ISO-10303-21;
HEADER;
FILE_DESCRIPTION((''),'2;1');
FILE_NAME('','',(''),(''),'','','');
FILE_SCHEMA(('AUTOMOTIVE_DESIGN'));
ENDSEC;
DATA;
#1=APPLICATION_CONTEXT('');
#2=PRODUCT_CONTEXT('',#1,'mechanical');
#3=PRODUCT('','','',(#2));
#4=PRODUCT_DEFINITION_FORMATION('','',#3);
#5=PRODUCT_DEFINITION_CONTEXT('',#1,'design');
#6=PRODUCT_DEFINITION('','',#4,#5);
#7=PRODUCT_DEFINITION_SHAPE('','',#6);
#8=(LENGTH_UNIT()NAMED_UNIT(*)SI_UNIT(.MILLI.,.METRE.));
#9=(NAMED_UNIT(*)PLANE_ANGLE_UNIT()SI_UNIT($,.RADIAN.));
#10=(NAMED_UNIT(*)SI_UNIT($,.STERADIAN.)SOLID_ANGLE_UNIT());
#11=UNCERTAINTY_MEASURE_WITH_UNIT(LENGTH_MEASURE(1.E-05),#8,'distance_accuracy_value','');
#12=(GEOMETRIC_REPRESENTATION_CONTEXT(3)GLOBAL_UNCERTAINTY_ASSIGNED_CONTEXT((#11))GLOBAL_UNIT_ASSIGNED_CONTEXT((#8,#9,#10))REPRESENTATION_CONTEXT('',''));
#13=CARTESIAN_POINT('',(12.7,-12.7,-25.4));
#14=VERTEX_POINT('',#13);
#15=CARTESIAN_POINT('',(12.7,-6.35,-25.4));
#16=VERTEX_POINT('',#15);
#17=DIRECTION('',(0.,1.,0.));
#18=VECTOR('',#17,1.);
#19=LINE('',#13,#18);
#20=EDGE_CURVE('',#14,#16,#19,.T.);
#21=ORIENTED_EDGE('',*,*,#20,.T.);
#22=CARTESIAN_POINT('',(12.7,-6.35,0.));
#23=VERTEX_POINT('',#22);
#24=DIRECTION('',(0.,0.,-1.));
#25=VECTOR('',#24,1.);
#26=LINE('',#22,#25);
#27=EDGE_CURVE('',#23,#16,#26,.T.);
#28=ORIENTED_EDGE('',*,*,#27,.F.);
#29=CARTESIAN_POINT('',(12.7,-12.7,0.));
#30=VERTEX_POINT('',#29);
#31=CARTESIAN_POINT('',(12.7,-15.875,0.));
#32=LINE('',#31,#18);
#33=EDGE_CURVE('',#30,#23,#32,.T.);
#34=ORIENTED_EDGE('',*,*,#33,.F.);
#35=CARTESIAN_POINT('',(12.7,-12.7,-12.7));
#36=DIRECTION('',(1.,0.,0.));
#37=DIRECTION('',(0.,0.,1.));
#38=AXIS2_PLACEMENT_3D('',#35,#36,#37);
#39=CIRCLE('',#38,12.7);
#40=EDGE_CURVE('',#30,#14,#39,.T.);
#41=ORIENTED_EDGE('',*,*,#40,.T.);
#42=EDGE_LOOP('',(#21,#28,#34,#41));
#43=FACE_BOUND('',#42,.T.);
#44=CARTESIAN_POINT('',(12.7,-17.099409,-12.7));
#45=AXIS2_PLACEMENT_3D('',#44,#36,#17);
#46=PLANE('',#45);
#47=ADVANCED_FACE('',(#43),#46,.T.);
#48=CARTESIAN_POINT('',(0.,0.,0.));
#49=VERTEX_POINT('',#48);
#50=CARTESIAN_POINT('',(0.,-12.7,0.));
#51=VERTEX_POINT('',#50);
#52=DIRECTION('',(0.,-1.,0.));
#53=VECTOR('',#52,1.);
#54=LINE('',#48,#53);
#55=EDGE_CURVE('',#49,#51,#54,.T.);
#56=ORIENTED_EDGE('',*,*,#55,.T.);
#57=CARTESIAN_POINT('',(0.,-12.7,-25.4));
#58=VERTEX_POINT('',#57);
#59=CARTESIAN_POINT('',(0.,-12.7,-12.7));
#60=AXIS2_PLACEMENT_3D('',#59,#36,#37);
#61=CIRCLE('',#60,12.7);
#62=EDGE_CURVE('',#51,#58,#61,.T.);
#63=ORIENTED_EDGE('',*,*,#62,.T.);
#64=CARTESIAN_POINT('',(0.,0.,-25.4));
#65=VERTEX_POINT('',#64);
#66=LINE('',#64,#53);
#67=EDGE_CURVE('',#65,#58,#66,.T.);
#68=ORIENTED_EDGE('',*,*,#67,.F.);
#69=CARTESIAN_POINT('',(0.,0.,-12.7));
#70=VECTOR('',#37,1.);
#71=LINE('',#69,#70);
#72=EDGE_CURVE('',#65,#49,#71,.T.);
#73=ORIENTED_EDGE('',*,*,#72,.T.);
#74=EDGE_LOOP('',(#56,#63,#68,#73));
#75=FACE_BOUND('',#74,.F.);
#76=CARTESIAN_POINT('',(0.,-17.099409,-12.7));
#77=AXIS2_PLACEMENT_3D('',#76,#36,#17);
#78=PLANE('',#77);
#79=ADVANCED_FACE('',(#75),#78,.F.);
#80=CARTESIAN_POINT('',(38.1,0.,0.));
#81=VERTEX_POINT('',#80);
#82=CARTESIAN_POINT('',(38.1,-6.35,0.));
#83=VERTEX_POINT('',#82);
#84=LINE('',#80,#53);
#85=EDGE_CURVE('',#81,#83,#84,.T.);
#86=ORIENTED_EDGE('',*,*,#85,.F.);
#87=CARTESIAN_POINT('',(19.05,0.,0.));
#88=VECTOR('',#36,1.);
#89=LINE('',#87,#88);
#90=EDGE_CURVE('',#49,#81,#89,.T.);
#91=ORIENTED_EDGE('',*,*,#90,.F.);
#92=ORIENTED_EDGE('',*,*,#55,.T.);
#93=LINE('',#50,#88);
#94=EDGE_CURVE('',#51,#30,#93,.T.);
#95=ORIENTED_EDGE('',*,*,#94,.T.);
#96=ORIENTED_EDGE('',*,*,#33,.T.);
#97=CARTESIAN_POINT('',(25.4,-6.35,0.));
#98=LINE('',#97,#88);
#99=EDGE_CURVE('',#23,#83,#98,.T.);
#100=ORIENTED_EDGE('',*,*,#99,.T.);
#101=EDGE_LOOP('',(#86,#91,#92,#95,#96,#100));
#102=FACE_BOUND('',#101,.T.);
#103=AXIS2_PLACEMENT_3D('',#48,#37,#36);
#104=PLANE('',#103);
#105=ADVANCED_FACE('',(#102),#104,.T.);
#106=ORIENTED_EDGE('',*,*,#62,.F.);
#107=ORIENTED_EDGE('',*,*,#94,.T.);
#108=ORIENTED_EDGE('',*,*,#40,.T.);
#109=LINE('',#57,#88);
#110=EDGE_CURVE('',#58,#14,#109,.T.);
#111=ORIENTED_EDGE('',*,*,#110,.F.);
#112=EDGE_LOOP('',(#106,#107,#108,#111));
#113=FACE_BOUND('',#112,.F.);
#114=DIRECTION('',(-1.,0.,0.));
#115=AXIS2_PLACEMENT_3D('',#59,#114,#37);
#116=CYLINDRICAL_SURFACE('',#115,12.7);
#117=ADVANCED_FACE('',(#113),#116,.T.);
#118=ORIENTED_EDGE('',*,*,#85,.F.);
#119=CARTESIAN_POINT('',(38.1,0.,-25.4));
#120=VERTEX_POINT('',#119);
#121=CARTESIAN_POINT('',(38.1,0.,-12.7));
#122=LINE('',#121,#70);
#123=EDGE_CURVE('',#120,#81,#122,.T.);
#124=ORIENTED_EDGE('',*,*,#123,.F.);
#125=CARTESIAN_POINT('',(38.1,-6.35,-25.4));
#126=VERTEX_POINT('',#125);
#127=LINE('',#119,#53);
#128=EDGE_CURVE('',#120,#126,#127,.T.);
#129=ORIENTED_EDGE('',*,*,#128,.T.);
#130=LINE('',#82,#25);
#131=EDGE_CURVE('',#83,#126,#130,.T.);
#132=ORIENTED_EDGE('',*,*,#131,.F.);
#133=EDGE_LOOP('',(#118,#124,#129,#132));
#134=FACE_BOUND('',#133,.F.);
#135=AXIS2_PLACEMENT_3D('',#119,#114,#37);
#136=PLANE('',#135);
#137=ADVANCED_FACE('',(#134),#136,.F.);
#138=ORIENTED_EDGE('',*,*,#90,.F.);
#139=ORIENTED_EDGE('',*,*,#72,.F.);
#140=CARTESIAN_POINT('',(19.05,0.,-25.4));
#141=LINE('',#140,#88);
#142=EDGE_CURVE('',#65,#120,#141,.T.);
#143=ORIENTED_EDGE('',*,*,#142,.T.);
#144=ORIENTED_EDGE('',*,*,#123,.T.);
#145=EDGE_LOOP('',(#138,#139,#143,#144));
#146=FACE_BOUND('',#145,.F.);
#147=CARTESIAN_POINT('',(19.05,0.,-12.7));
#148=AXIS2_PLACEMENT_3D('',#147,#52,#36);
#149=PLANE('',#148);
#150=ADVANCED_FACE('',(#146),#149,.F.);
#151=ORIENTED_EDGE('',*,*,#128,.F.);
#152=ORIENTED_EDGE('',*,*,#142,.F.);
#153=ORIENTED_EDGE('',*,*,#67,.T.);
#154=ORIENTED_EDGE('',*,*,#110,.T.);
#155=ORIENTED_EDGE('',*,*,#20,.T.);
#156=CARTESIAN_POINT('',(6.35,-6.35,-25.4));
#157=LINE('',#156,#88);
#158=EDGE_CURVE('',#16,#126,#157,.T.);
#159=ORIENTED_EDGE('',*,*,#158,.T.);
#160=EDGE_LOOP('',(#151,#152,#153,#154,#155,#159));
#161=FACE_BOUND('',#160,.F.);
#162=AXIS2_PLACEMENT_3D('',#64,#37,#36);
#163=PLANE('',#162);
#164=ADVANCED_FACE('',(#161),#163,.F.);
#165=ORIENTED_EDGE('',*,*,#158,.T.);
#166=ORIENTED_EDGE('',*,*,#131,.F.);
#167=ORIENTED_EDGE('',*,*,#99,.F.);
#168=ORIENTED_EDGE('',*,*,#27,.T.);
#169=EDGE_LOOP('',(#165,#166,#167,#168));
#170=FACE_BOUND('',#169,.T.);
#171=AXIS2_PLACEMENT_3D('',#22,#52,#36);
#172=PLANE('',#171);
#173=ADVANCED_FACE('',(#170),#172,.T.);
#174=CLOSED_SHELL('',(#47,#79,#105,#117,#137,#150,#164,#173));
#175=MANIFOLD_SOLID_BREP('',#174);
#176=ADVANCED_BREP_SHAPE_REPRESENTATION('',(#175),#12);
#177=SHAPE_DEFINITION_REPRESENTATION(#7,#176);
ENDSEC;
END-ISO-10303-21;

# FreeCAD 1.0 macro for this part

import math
import FreeCAD as App
import Part
import Sketcher
Q = App.Units.Quantity


def add_polygon(sketch, points):
    """Adds a closed chain of lines whose ends are joined by coincident constraints."""
    first, n = sketch.GeometryCount, len(points)
    for a, b in zip(points, points[1:] + points[:1]):
        sketch.addGeometry(Part.LineSegment(App.Vector(*a, 0), App.Vector(*b, 0)), False)
    for i in range(n):
        sketch.addConstraint(Sketcher.Constraint("Coincident", first + i, 2, first + (i + 1) % n, 1))

doc = App.newDocument("Part")
body = doc.addObject("PartDesign::Body", "Body")

sketch1 = body.newObject("Sketcher::SketchObject", "Sketch")
sketch1.AttachmentSupport = (doc.getObject("XZ_Plane"), [""])
sketch1.MapMode = "FlatFace"
add_polygon(sketch1, [(0, 0), (0, -25), (38, -25), (38, 0)])
sketch1.addConstraint([
    Sketcher.Constraint("Vertical", 0),
    Sketcher.Constraint("Horizontal", 1),
    Sketcher.Constraint("Vertical", 2),
    Sketcher.Constraint("Horizontal", 3),
    Sketcher.Constraint("Coincident", 3, 2, -1, 1),
    Sketcher.Constraint("DistanceY", 0, 2, 0, 1, Q("1 in")),
    Sketcher.Constraint("DistanceX", 1, 1, 1, 2, Q("1.5 in")),
])
pad1 = body.newObject("PartDesign::Pad", "Pad")
pad1.Profile = sketch1
pad1.Length = Q("1 in")

sketch2 = body.newObject("Sketcher::SketchObject", "Sketch001")
sketch2.AttachmentSupport = (doc.getObject("XY_Plane"), [""])
sketch2.MapMode = "FlatFace"
add_polygon(sketch2, [(13, -6), (13, -25), (38, -25), (38, -6)])
sketch2.addConstraint([
    Sketcher.Constraint("Vertical", 0),
    Sketcher.Constraint("Horizontal", 1),
    Sketcher.Constraint("Vertical", 2),
    Sketcher.Constraint("Horizontal", 3),
    Sketcher.Constraint("DistanceX", 1, 1, 1, 2, Q("1 in")),
    Sketcher.Constraint("DistanceY", 0, 2, -1, 1, Q("1 in")),
    Sketcher.Constraint("DistanceY", 0, 2, 0, 1, Q("0.75 in")),
    Sketcher.Constraint("DistanceX", -1, 1, 0, 2, Q("0.5 in")),
])
pocket1 = body.newObject("PartDesign::Pocket", "Pocket")
pocket1.Profile = sketch2
pocket1.Type = "ThroughAll"

sketch3 = body.newObject("Sketcher::SketchObject", "Sketch002")
sketch3.AttachmentSupport = (doc.getObject("YZ_Plane"), [""])
sketch3.MapMode = "FlatFace"
add_polygon(sketch3, [(-25, 0), (-25, -25), (-13, -25), (-13, 0)])
sketch3.addConstraint([
    Sketcher.Constraint("Vertical", 0),
    Sketcher.Constraint("Horizontal", 1),
    Sketcher.Constraint("Vertical", 2),
    Sketcher.Constraint("Horizontal", 3),
    Sketcher.Constraint("PointOnObject", 2, 2, -1),
    Sketcher.Constraint("DistanceY", 0, 2, 0, 1, Q("1 in")),
    Sketcher.Constraint("DistanceX", 1, 1, 1, 2, Q("0.5 in")),
    Sketcher.Constraint("DistanceX", 0, 2, -1, 1, Q("1 in")),
])
pocket2 = body.newObject("PartDesign::Pocket", "Pocket001")
pocket2.Profile = sketch3
pocket2.Length = Q("1 in")
pocket2.Reversed = True

sketch4 = body.newObject("Sketcher::SketchObject", "Sketch003")
sketch4.AttachmentSupport = (doc.getObject("YZ_Plane"), [""])
sketch4.MapMode = "FlatFace"
sketch4.addGeometry([
    Part.LineSegment(App.Vector(-13, -25, 0), App.Vector(-13, 0, 0)),
    Part.ArcOfCircle(Part.Circle(App.Vector(-13, -13, 0), App.Vector(0, 0, 1), 13), math.radians(90), math.radians(270)),
], False)
sketch4.addConstraint([
    Sketcher.Constraint("Coincident", 0, 1, 1, 2),
    Sketcher.Constraint("Coincident", 1, 1, 0, 2),
    Sketcher.Constraint("Vertical", 0),
    Sketcher.Constraint("PointOnObject", 1, 1, -1),
    Sketcher.Constraint("Vertical", 1, 3, 0, 1),
    Sketcher.Constraint("Radius", 1, Q("0.5 in")),
    Sketcher.Constraint("DistanceX", 1, 3, -1, 1, Q("0.5 in")),
])
pad2 = body.newObject("PartDesign::Pad", "Pad001")
pad2.Profile = sketch4
pad2.Length = Q("0.5 in")

doc.recompute()
